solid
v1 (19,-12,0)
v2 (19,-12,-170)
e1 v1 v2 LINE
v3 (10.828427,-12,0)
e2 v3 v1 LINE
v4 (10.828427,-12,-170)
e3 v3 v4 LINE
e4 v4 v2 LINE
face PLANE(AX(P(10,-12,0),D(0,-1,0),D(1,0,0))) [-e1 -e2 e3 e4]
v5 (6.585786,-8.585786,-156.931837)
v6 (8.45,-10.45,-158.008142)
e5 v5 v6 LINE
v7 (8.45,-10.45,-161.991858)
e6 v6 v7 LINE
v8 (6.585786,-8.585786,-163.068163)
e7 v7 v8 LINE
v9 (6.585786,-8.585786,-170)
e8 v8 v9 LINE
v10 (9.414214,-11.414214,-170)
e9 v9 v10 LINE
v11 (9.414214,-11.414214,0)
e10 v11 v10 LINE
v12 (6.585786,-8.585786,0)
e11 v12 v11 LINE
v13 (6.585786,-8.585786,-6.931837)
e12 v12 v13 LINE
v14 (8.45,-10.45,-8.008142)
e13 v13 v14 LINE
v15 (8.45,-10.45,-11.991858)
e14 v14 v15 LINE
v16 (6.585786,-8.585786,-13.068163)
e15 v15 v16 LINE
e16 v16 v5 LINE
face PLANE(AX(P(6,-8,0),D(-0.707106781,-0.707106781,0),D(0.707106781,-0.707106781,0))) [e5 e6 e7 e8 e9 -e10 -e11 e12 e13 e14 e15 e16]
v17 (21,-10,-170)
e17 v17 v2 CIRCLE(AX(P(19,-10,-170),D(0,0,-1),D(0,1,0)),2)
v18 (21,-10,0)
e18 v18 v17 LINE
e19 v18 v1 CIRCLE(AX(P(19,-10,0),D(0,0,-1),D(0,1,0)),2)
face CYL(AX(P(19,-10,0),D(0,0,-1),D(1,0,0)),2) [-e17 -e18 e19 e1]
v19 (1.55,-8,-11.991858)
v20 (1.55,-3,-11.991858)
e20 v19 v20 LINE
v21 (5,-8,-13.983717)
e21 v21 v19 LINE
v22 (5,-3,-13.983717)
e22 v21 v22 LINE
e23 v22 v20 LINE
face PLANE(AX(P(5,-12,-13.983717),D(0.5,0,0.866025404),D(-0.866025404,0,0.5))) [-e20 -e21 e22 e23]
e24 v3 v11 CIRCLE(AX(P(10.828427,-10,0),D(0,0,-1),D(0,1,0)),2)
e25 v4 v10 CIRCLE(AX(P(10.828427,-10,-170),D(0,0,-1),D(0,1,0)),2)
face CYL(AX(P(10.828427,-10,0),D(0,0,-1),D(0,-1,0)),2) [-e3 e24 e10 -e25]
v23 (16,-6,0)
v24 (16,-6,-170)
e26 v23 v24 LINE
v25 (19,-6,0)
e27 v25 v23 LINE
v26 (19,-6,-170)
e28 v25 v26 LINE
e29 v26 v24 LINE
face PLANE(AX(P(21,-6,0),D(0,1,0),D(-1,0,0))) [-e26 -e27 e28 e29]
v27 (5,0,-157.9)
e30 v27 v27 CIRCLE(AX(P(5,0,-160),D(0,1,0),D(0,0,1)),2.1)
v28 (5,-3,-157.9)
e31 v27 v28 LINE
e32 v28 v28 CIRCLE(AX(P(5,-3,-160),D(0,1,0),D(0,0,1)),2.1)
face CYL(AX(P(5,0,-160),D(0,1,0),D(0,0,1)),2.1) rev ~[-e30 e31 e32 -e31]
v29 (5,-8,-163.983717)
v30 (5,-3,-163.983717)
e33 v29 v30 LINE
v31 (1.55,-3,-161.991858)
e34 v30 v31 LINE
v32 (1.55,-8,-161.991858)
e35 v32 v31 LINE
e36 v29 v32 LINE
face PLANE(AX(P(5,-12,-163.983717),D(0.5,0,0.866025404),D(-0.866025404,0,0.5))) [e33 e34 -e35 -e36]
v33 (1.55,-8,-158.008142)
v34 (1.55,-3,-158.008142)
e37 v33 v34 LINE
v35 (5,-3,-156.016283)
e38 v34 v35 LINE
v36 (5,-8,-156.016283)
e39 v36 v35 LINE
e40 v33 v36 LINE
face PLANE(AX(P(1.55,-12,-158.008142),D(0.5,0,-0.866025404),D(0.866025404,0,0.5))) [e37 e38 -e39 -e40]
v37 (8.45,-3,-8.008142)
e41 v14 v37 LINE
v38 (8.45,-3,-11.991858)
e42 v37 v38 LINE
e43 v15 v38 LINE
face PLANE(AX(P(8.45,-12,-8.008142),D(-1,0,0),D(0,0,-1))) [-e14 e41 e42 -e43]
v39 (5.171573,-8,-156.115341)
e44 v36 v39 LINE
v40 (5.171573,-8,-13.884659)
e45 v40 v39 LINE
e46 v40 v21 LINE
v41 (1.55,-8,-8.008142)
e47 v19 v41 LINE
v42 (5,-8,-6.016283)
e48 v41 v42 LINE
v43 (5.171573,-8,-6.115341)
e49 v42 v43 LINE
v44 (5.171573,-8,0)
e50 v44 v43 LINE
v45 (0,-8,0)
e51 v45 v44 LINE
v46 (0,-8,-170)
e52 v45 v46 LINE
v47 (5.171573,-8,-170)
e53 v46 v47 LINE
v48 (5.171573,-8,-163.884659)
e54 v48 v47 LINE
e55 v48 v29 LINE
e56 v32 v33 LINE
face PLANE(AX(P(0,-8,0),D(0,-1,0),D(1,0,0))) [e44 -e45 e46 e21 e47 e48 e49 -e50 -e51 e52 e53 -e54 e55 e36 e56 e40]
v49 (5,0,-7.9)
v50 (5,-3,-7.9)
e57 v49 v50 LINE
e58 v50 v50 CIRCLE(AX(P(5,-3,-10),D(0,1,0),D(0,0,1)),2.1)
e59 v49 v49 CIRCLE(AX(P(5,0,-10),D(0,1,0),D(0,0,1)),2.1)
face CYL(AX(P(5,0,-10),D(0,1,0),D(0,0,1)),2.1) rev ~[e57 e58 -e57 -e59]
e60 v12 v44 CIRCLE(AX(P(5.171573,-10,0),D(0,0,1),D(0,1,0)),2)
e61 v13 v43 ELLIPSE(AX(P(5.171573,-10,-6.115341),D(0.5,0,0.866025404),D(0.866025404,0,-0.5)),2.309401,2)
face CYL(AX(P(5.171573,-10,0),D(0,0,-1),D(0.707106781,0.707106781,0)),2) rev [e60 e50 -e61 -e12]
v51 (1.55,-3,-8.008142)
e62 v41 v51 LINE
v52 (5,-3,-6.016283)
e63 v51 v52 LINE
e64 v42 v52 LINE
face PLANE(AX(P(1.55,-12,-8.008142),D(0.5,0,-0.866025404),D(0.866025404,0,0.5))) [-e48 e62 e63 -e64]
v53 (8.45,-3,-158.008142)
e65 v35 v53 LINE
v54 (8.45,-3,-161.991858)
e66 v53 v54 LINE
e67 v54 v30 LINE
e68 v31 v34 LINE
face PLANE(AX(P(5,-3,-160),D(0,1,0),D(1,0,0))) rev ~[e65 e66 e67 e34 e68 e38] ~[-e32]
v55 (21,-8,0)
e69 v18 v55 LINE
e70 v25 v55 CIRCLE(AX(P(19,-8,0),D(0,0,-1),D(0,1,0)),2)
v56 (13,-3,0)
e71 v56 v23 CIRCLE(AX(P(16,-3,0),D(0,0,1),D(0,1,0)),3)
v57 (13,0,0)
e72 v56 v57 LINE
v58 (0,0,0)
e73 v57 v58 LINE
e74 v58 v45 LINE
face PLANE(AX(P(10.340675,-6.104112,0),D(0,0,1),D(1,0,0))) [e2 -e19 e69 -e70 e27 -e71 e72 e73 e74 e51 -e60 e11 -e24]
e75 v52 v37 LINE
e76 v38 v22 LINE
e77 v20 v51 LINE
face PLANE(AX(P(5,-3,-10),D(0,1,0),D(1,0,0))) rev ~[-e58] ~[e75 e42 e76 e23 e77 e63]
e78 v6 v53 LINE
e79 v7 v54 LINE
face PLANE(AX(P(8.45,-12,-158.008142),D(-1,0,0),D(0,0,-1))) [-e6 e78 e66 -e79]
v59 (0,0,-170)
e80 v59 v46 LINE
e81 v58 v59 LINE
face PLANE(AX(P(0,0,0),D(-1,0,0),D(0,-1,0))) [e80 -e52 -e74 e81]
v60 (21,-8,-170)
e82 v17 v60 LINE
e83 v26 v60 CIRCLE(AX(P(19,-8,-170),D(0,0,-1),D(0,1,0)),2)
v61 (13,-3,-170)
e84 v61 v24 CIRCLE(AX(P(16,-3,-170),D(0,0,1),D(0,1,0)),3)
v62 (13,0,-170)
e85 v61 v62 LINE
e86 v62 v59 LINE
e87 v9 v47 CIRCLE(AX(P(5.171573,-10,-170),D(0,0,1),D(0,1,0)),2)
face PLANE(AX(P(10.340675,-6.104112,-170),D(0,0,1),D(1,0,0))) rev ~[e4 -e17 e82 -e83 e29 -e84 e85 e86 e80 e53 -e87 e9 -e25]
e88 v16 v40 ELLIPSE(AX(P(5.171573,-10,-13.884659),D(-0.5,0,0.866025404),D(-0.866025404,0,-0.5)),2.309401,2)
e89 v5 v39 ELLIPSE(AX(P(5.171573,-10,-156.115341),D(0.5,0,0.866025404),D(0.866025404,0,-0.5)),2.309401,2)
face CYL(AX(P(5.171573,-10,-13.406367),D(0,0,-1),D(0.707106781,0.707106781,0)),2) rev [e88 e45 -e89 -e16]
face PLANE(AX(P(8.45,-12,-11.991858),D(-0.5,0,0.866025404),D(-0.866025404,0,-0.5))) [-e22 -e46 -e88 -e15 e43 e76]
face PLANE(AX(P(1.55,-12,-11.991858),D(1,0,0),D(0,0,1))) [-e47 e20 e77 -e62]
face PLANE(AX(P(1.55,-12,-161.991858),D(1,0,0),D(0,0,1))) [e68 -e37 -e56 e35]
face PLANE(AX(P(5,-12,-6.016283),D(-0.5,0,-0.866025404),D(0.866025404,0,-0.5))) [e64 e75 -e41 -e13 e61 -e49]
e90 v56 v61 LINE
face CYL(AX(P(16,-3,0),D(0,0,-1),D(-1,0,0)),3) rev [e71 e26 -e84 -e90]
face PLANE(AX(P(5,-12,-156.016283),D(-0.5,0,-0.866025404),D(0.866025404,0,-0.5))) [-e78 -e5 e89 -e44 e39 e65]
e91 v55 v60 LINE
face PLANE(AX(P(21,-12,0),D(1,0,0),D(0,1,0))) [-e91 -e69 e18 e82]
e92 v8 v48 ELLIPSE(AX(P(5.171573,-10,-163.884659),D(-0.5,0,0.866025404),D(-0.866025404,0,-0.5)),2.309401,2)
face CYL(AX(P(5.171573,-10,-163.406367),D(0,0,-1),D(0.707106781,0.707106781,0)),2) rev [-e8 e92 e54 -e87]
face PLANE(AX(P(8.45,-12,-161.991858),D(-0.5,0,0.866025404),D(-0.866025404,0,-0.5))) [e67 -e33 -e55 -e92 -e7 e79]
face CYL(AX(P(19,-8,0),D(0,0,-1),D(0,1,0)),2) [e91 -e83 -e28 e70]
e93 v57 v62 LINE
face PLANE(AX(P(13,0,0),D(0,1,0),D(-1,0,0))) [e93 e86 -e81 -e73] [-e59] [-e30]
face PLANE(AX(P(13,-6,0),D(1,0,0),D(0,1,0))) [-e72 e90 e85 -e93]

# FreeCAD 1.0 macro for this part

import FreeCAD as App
import Part
import Sketcher
Q = App.Units.Quantity


def edges_at(feature, points):
    """Names of the edges that pass closest to the given points."""
    edges = feature.Shape.Edges
    near = lambda p: min(range(len(edges)), key=lambda i: edges[i].distToShape(Part.Vertex(*p))[0])
    return sorted({f"Edge{near(p) + 1}" for p in points})


def add_polygon(sketch, points):
    """Adds a closed chain of lines whose ends are joined by coincident constraints."""
    first, n = sketch.GeometryCount, len(points)
    for a, b in zip(points, points[1:] + points[:1]):
        sketch.addGeometry(Part.LineSegment(App.Vector(*a, 0), App.Vector(*b, 0)), False)
    for i in range(n):
        sketch.addConstraint(Sketcher.Constraint("Coincident", first + i, 2, first + (i + 1) % n, 1))

doc = App.newDocument("Part")
params = doc.addObject("Spreadsheet::Sheet", "Params")
for row, (alias, value) in enumerate([
    ("sketch1_width", "13 mm"),
    ("sketch1_width2", "6 mm"),
    ("sketch1_width3", "11 mm"),
    ("sketch1_width4", "8 mm"),
    ("pad1_length", "170 mm"),
    ("fillet_radius", "3 mm"),
    ("sketch2_diameter", "4.2 mm"),
    ("pocket1_length", "8 mm"),
    ("pocket2_length", "9 mm"),
    ("fillet2_radius", "2 mm"),
    ("fillet3_radius", "2 mm"),
], start=1):
    params.set(f"A{row}", alias)
    params.set(f"B{row}", "=" + value)
    params.setAlias(f"B{row}", alias)

body = doc.addObject("PartDesign::Body", "Body")

sketch1 = doc.addObject("Sketcher::SketchObject", "Sketch")
body.addObject(sketch1)
sketch1.AttachmentSupport = (doc.XY_Plane, [""])
sketch1.MapMode = "FlatFace"
add_polygon(sketch1, [(13, -6), (13, 0), (0, 0), (0, -8), (6, -8), (10, -12), (21, -12), (21, -6)])
sketch1.addConstraint([
    Sketcher.Constraint("Vertical", 0),
    Sketcher.Constraint("Horizontal", 1),
    Sketcher.Constraint("Vertical", 2),
    Sketcher.Constraint("Horizontal", 3),
    Sketcher.Constraint("Horizontal", 5),
    Sketcher.Constraint("Vertical", 6),
    Sketcher.Constraint("Horizontal", 7),
    Sketcher.Constraint("Coincident", 1, 2, -1, 1),
    Sketcher.Constraint("Equal", 3, 0),
    Sketcher.Constraint("Equal", 7, 2),
    Sketcher.Constraint("Equal", 0, 6),
    Sketcher.Constraint("DistanceX", 1, 2, 1, 1, 13.0),
    Sketcher.Constraint("DistanceX", 3, 1, 3, 2, 6.0),
    Sketcher.Constraint("DistanceX", 5, 1, 5, 2, 11.0),
    Sketcher.Constraint("DistanceX", 7, 2, 7, 1, 8.0),
])
sketch1.setExpression("Constraints[19]", "Params.sketch1_width")
sketch1.setExpression("Constraints[20]", "Params.sketch1_width2")
sketch1.setExpression("Constraints[21]", "Params.sketch1_width3")
sketch1.setExpression("Constraints[22]", "Params.sketch1_width4")
pad1 = doc.addObject("PartDesign::Pad", "Pad")
body.addObject(pad1)
pad1.Profile = sketch1
pad1.setExpression("Length", "Params.pad1_length")
pad1.Reversed = True
doc.recompute()

fillet = doc.addObject("PartDesign::Fillet", "Fillet")
body.addObject(fillet)
fillet.Base = (pad1, edges_at(pad1, [(13, -6, -85)]))
fillet.setExpression("Radius", "Params.fillet_radius")

sketch2 = doc.addObject("Sketcher::SketchObject", "Sketch001")
body.addObject(sketch2)
sketch2.AttachmentSupport = (doc.XZ_Plane, [""])
sketch2.MapMode = "FlatFace"
sketch2.addGeometry([
    Part.Circle(App.Vector(5, -10, 0), App.Vector(0, 0, 1), 2.1),
    Part.Circle(App.Vector(5, -160, 0), App.Vector(0, 0, 1), 2.1),
], False)
sketch2.addConstraint([
    Sketcher.Constraint("Equal", 0, 1),
    Sketcher.Constraint("Vertical", 0, 3, 1, 3),
    Sketcher.Constraint("Diameter", 0, 4.2),
    Sketcher.Constraint("DistanceX", -1, 1, 0, 3, 5.0),
    Sketcher.Constraint("DistanceY", 0, 3, -1, 1, 10.0),
    Sketcher.Constraint("DistanceY", 1, 3, -1, 1, 160.0),
])
sketch2.setExpression("Constraints[2]", "Params.sketch2_diameter")
pocket1 = doc.addObject("PartDesign::Pocket", "Pocket")
body.addObject(pocket1)
pocket1.Profile = sketch2
pocket1.setExpression("Length", "Params.pocket1_length")
pocket1.Reversed = True

sketch3 = doc.addObject("Sketcher::SketchObject", "Sketch002")
body.addObject(sketch3)
sketch3.AttachmentSupport = (doc.XZ_Plane, [""])
sketch3.MapMode = "FlatFace"
sketch3.AttachmentOffset = App.Placement(App.Vector(0, 0, 12), App.Rotation())
add_polygon(sketch3, [(1.55, -11.991858), (1.55, -8.008142), (5, -6.016283), (8.45, -8.008142), (8.45, -11.991858), (5, -13.983717)])
add_polygon(sketch3, [(1.55, -161.991858), (1.55, -158.008142), (5, -156.016283), (8.45, -158.008142), (8.45, -161.991858), (5, -163.983717)])
sketch3.addConstraint([
    Sketcher.Constraint("Vertical", 0),
    Sketcher.Constraint("Vertical", 3),
    Sketcher.Constraint("Vertical", 6),
    Sketcher.Constraint("Vertical", 9),
    Sketcher.Constraint("Parallel", 1, 4),
    Sketcher.Constraint("Parallel", 2, 5),
    Sketcher.Constraint("Parallel", 4, 7),
    Sketcher.Constraint("Parallel", 5, 8),
    Sketcher.Constraint("Parallel", 7, 10),
    Sketcher.Constraint("Parallel", 8, 11),
    Sketcher.Constraint("Horizontal", 0, 2, 2, 2),
    Sketcher.Constraint("Horizontal", 3, 2, 5, 2),
    Sketcher.Constraint("Horizontal", 6, 2, 8, 2),
    Sketcher.Constraint("Horizontal", 9, 2, 11, 2),
    Sketcher.Constraint("Vertical", 1, 2, 4, 2),
    Sketcher.Constraint("Vertical", 5, 2, 6, 2),
    Sketcher.Constraint("Vertical", 4, 2, 7, 2),
    Sketcher.Constraint("Equal", 3, 6),
    Sketcher.Constraint("Angle", 1, Q("30 deg")),
    Sketcher.Constraint("DistanceX", -1, 1, 1, 2, 5.0),
    Sketcher.Constraint("DistanceY", 6, 2, 0, 2, 150.0),
    Sketcher.Constraint("DistanceX", 0, 2, 2, 2, 6.9),
    Sketcher.Constraint("DistanceY", 0, 1, 0, 2, 3.983717),
    Sketcher.Constraint("DistanceY", 0, 2, -1, 1, 8.008142),
])
pocket2 = doc.addObject("PartDesign::Pocket", "Pocket001")
body.addObject(pocket2)
pocket2.Profile = sketch3
pocket2.setExpression("Length", "Params.pocket2_length")
doc.recompute()

fillet2 = doc.addObject("PartDesign::Fillet", "Fillet001")
body.addObject(fillet2)
fillet2.Base = (pocket2, edges_at(pocket2, [(21, -6, -85), (21, -12, -85)]))
fillet2.setExpression("Radius", "Params.fillet2_radius")
doc.recompute()

fillet3 = doc.addObject("PartDesign::Fillet", "Fillet002")
body.addObject(fillet3)
fillet3.Base = (fillet2, edges_at(fillet2, [
    (10, -12, -85),
    (6, -8, -166.703),
    (6, -8, -85),
    (6, -8, -3.297),
]))
fillet3.setExpression("Radius", "Params.fillet3_radius")

doc.recompute()
